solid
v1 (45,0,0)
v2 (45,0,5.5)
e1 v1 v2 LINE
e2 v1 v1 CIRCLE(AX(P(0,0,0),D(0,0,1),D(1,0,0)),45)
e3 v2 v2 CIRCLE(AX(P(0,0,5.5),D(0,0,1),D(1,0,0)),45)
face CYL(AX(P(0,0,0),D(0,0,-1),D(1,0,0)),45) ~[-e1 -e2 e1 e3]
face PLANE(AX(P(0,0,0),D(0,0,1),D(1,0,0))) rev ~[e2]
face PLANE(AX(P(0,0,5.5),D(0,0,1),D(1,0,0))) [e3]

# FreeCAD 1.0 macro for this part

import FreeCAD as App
import Part
import Sketcher
from FreeCAD import Vector
Q = App.Units.Quantity

doc = App.newDocument("Part")
params = doc.addObject("Spreadsheet::Sheet", "Params")
for row, (alias, value) in enumerate([
    ("sketch1_diameter", "90 mm"),
    ("pad1_length", "5.5 mm"),
], start=1):
    params.set(f"A{row}", alias)
    params.set(f"B{row}", "=" + value)
    params.setAlias(f"B{row}", alias)

body = doc.addObject("PartDesign::Body", "Body")

# Sketch on XY plane
sketch1 = body.newObject("Sketcher::SketchObject", "Sketch")
sketch1.AttachmentSupport = (doc.getObject("XY_Plane"), [""])
sketch1.MapMode = "FlatFace"
sketch1.addGeometry(Part.Circle(Vector(0, 0, 0), Vector(0, 0, 1), 45), False)
sketch1.addConstraint(Sketcher.Constraint("Coincident", 0, 3, -1, 1))
sketch1.addConstraint(Sketcher.Constraint("Diameter", 0, Q("90 mm")))
sketch1.setExpression("Constraints[1]", "Params.sketch1_diameter")
pad1 = body.newObject("PartDesign::Pad", "Pad")
pad1.Profile = sketch1
pad1.setExpression("Length", "Params.pad1_length")

doc.recompute()
